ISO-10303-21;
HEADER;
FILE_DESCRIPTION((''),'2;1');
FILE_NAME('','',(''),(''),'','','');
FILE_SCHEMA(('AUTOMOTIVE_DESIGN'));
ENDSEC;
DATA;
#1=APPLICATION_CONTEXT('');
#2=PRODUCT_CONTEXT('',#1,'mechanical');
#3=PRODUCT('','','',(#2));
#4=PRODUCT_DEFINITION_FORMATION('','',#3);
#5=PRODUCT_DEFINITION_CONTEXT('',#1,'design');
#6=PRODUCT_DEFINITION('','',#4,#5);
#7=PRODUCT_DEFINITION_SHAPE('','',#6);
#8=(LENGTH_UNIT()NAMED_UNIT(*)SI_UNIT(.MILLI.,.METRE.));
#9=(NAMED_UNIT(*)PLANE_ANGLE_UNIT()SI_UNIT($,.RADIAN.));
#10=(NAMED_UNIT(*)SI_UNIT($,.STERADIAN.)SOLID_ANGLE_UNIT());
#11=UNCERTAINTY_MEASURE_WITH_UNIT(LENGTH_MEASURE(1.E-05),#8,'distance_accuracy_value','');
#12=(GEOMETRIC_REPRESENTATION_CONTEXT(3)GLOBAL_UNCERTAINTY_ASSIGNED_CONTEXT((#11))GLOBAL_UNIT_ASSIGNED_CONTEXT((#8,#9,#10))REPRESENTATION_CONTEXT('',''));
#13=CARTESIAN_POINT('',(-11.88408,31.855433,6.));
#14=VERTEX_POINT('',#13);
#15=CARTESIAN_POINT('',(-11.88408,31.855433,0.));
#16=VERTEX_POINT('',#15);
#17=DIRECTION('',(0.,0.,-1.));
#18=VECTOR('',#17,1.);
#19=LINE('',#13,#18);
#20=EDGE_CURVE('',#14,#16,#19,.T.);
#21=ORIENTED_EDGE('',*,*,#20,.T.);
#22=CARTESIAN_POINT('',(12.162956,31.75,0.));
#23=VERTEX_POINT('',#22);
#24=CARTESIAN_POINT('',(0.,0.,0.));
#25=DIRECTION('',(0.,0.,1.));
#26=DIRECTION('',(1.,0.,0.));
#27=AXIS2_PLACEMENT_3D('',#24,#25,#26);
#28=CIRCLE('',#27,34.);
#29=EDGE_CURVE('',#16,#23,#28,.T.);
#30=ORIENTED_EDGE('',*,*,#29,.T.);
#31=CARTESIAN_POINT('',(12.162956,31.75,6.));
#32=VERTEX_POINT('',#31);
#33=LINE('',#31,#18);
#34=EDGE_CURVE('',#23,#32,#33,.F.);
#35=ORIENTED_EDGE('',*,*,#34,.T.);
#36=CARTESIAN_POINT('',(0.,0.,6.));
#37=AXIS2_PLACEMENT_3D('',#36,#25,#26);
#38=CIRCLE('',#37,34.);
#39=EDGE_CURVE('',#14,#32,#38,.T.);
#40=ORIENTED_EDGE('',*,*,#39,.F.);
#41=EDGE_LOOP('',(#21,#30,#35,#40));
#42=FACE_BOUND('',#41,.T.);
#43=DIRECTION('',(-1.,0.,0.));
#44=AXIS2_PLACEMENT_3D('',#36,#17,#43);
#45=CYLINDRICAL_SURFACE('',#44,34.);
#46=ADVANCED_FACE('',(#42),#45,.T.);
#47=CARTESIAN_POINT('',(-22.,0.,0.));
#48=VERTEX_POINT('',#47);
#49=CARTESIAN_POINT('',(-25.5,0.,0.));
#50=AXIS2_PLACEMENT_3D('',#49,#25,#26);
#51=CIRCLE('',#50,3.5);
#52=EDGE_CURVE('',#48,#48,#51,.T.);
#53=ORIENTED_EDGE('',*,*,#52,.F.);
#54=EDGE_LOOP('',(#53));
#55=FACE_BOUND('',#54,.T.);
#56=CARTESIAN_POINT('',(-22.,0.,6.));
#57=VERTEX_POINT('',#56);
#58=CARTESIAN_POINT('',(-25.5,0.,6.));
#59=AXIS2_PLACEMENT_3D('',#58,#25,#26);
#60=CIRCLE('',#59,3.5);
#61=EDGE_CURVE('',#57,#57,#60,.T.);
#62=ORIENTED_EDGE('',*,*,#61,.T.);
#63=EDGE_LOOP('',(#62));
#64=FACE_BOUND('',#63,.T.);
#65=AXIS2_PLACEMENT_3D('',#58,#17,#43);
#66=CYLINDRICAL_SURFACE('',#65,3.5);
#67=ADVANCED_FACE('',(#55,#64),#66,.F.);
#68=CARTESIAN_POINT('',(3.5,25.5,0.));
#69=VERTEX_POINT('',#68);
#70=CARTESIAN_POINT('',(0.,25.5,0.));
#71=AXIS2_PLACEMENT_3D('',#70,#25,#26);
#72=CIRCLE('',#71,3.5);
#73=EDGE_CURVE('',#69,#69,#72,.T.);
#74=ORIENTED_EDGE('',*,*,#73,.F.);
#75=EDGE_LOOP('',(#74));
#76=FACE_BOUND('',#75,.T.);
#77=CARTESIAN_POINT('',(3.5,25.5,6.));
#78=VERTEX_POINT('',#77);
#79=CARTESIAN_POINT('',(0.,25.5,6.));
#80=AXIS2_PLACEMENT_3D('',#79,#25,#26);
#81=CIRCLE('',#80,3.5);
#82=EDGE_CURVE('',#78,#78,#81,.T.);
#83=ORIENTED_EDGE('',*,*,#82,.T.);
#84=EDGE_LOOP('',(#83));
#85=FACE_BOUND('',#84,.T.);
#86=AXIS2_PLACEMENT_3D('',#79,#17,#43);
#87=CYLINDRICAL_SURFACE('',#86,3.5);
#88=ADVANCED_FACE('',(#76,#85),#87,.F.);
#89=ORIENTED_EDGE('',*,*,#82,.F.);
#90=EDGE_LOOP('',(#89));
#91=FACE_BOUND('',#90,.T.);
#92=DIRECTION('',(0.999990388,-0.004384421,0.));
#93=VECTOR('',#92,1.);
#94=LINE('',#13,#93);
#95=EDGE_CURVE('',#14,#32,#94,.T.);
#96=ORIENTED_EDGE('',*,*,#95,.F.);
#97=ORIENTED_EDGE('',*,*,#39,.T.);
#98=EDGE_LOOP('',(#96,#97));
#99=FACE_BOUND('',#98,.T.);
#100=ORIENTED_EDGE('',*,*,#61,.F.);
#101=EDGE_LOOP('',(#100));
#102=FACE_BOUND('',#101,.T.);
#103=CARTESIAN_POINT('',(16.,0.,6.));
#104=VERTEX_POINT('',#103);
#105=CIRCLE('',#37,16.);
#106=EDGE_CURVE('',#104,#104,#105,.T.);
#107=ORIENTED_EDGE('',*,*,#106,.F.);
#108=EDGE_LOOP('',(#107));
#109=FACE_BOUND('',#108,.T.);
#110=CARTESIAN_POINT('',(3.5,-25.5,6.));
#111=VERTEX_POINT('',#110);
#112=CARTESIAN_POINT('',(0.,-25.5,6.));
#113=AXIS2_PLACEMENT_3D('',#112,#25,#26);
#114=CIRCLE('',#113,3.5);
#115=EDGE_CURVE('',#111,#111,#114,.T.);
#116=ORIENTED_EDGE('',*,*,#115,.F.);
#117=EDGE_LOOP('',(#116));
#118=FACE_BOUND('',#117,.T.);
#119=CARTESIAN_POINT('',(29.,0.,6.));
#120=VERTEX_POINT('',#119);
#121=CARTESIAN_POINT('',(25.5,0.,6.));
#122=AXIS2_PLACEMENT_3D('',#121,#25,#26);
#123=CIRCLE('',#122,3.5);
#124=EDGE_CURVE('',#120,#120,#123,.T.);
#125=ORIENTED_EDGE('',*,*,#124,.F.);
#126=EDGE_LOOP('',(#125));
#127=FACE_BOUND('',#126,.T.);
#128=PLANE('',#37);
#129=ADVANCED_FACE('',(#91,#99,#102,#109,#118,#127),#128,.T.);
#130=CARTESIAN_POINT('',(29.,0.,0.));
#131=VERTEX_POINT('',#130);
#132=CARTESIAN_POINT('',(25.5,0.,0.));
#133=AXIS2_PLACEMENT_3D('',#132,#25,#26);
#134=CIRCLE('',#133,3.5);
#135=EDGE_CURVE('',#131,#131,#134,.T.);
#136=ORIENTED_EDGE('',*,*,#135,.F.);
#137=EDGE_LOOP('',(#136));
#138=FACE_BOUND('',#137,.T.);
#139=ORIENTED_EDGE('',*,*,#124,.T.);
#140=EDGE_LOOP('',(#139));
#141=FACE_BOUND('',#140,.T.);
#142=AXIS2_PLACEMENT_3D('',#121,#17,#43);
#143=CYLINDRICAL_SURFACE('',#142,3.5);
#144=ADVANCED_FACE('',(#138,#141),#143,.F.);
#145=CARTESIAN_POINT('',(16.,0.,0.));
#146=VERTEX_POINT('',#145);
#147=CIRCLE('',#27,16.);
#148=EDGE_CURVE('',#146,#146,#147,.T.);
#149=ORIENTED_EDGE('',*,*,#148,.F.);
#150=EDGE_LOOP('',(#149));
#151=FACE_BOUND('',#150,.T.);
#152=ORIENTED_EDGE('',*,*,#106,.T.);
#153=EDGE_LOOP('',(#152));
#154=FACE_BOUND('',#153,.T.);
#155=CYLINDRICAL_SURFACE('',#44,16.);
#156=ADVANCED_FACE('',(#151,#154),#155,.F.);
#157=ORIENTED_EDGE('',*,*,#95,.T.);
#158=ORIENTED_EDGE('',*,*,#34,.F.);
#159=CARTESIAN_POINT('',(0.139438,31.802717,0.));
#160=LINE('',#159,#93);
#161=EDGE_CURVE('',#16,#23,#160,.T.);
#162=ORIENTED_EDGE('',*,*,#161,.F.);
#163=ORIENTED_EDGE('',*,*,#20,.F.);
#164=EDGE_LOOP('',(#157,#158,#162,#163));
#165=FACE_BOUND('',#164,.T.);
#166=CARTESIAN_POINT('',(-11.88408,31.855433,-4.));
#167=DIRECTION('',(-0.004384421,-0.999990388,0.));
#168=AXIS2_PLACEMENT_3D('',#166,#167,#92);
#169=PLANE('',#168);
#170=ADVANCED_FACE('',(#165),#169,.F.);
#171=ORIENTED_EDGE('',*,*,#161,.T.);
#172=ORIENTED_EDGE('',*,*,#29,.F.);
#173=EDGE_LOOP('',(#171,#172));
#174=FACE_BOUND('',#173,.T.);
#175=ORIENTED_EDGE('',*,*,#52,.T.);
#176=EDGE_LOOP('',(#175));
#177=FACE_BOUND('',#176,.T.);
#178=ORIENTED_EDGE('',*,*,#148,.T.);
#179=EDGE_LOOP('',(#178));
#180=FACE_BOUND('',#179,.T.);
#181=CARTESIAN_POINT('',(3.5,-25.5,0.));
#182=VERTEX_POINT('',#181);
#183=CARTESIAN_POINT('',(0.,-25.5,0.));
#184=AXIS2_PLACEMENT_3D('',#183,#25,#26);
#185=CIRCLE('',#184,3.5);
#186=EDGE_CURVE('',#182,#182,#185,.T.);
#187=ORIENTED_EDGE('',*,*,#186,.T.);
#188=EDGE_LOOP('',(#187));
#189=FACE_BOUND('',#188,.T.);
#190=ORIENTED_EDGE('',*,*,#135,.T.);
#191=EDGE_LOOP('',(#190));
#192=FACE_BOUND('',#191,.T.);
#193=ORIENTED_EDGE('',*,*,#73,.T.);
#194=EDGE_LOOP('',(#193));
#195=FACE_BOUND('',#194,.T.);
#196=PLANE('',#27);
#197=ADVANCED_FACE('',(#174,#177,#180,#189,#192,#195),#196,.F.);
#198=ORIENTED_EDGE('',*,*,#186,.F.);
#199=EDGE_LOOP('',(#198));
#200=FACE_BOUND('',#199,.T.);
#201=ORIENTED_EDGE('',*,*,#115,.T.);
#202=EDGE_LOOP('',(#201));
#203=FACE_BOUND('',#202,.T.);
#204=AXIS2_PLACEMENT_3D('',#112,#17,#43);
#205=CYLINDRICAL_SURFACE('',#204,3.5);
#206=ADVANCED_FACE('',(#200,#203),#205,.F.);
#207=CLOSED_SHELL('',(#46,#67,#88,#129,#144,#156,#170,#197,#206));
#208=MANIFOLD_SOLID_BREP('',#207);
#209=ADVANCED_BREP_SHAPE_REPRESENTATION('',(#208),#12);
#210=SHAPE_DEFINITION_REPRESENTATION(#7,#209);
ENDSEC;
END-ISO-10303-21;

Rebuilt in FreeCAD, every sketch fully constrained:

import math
import FreeCAD as App
import Part
import Sketcher
from FreeCAD import Vector
Q = App.Units.Quantity

doc = App.newDocument("Part")
body = doc.addObject("PartDesign::Body", "Body")

# Sketch on XY plane
sketch1 = body.newObject("Sketcher::SketchObject", "Sketch")
sketch1.AttachmentSupport = (doc.getObject("XY_Plane"), [""])
sketch1.MapMode = "FlatFace"
sketch1.addGeometry([
    Part.Circle(Vector(0, 0, 0), Vector(0, 0, 1), 34),  # 0
    Part.Circle(Vector(0, -25.5, 0), Vector(0, 0, 1), 3.5),  # 1
    Part.Circle(Vector(-25.5, 0, 0), Vector(0, 0, 1), 3.5),  # 2
    Part.Circle(Vector(0, 0, 0), Vector(0, 0, 1), 16),  # 3
    Part.Circle(Vector(25.5, 0, 0), Vector(0, 0, 1), 3.5),  # 4
    Part.Circle(Vector(0, 25.5, 0), Vector(0, 0, 1), 3.5),  # 5
], False)
sketch1.addConstraint([
    Sketcher.Constraint("Coincident", 0, 3, -1, 1),
    Sketcher.Constraint("Coincident", 3, 3, -1, 1),
    Sketcher.Constraint("Equal", 1, 2),
    Sketcher.Constraint("Equal", 2, 4),
    Sketcher.Constraint("Equal", 4, 5),
    Sketcher.Constraint("Symmetric", 2, 3, 4, 3, -1, 1),
    Sketcher.Constraint("Symmetric", 1, 3, 5, 3, -1, 1),
    Sketcher.Constraint("PointOnObject", 1, 3, -2),
    Sketcher.Constraint("PointOnObject", 2, 3, -1),
    Sketcher.Constraint("Diameter", 0, Q("68 mm")),
    Sketcher.Constraint("Diameter", 1, Q("7 mm")),
    Sketcher.Constraint("Diameter", 3, Q("32 mm")),
    Sketcher.Constraint("DistanceX", 2, 3, 4, 3, Q("51 mm")),
    Sketcher.Constraint("DistanceY", 1, 3, 5, 3, Q("51 mm")),
])
pad1 = body.newObject("PartDesign::Pad", "Pad")
pad1.Profile = sketch1
pad1.Length = 6

# Sketch on XY plane
sketch2 = body.newObject("Sketcher::SketchObject", "Sketch001")
sketch2.AttachmentSupport = (doc.getObject("XY_Plane"), [""])
sketch2.MapMode = "FlatFace"
sketch2.AttachmentOffset = App.Placement(Vector(0, 0, -4), App.Rotation())
sketch2.addGeometry([
    Part.LineSegment(Vector(-11.88408, 31.855433, 0), Vector(12.162956, 31.75, 0)),
    Part.ArcOfCircle(Part.Circle(Vector(0, 0, 0), Vector(0, 0, 1), 34), math.radians(69.038902), math.radians(110.458679)),
], False)
sketch2.addConstraint([
    Sketcher.Constraint("Coincident", 0, 1, 1, 2),
    Sketcher.Constraint("Coincident", 1, 1, 0, 2),
    Sketcher.Constraint("Coincident", 1, 3, -1, 1),
    Sketcher.Constraint("Radius", 1, Q("34 mm")),
    Sketcher.Constraint("DistanceY", -1, 1, 1, 1, Q("31.75 mm")),
    Sketcher.Constraint("DistanceX", 0, 1, -1, 1, Q("11.88408 mm")),
])
pocket1 = body.newObject("PartDesign::Pocket", "Pocket")
pocket1.Profile = sketch2
pocket1.Length = 10
pocket1.Reversed = True

doc.recompute()
